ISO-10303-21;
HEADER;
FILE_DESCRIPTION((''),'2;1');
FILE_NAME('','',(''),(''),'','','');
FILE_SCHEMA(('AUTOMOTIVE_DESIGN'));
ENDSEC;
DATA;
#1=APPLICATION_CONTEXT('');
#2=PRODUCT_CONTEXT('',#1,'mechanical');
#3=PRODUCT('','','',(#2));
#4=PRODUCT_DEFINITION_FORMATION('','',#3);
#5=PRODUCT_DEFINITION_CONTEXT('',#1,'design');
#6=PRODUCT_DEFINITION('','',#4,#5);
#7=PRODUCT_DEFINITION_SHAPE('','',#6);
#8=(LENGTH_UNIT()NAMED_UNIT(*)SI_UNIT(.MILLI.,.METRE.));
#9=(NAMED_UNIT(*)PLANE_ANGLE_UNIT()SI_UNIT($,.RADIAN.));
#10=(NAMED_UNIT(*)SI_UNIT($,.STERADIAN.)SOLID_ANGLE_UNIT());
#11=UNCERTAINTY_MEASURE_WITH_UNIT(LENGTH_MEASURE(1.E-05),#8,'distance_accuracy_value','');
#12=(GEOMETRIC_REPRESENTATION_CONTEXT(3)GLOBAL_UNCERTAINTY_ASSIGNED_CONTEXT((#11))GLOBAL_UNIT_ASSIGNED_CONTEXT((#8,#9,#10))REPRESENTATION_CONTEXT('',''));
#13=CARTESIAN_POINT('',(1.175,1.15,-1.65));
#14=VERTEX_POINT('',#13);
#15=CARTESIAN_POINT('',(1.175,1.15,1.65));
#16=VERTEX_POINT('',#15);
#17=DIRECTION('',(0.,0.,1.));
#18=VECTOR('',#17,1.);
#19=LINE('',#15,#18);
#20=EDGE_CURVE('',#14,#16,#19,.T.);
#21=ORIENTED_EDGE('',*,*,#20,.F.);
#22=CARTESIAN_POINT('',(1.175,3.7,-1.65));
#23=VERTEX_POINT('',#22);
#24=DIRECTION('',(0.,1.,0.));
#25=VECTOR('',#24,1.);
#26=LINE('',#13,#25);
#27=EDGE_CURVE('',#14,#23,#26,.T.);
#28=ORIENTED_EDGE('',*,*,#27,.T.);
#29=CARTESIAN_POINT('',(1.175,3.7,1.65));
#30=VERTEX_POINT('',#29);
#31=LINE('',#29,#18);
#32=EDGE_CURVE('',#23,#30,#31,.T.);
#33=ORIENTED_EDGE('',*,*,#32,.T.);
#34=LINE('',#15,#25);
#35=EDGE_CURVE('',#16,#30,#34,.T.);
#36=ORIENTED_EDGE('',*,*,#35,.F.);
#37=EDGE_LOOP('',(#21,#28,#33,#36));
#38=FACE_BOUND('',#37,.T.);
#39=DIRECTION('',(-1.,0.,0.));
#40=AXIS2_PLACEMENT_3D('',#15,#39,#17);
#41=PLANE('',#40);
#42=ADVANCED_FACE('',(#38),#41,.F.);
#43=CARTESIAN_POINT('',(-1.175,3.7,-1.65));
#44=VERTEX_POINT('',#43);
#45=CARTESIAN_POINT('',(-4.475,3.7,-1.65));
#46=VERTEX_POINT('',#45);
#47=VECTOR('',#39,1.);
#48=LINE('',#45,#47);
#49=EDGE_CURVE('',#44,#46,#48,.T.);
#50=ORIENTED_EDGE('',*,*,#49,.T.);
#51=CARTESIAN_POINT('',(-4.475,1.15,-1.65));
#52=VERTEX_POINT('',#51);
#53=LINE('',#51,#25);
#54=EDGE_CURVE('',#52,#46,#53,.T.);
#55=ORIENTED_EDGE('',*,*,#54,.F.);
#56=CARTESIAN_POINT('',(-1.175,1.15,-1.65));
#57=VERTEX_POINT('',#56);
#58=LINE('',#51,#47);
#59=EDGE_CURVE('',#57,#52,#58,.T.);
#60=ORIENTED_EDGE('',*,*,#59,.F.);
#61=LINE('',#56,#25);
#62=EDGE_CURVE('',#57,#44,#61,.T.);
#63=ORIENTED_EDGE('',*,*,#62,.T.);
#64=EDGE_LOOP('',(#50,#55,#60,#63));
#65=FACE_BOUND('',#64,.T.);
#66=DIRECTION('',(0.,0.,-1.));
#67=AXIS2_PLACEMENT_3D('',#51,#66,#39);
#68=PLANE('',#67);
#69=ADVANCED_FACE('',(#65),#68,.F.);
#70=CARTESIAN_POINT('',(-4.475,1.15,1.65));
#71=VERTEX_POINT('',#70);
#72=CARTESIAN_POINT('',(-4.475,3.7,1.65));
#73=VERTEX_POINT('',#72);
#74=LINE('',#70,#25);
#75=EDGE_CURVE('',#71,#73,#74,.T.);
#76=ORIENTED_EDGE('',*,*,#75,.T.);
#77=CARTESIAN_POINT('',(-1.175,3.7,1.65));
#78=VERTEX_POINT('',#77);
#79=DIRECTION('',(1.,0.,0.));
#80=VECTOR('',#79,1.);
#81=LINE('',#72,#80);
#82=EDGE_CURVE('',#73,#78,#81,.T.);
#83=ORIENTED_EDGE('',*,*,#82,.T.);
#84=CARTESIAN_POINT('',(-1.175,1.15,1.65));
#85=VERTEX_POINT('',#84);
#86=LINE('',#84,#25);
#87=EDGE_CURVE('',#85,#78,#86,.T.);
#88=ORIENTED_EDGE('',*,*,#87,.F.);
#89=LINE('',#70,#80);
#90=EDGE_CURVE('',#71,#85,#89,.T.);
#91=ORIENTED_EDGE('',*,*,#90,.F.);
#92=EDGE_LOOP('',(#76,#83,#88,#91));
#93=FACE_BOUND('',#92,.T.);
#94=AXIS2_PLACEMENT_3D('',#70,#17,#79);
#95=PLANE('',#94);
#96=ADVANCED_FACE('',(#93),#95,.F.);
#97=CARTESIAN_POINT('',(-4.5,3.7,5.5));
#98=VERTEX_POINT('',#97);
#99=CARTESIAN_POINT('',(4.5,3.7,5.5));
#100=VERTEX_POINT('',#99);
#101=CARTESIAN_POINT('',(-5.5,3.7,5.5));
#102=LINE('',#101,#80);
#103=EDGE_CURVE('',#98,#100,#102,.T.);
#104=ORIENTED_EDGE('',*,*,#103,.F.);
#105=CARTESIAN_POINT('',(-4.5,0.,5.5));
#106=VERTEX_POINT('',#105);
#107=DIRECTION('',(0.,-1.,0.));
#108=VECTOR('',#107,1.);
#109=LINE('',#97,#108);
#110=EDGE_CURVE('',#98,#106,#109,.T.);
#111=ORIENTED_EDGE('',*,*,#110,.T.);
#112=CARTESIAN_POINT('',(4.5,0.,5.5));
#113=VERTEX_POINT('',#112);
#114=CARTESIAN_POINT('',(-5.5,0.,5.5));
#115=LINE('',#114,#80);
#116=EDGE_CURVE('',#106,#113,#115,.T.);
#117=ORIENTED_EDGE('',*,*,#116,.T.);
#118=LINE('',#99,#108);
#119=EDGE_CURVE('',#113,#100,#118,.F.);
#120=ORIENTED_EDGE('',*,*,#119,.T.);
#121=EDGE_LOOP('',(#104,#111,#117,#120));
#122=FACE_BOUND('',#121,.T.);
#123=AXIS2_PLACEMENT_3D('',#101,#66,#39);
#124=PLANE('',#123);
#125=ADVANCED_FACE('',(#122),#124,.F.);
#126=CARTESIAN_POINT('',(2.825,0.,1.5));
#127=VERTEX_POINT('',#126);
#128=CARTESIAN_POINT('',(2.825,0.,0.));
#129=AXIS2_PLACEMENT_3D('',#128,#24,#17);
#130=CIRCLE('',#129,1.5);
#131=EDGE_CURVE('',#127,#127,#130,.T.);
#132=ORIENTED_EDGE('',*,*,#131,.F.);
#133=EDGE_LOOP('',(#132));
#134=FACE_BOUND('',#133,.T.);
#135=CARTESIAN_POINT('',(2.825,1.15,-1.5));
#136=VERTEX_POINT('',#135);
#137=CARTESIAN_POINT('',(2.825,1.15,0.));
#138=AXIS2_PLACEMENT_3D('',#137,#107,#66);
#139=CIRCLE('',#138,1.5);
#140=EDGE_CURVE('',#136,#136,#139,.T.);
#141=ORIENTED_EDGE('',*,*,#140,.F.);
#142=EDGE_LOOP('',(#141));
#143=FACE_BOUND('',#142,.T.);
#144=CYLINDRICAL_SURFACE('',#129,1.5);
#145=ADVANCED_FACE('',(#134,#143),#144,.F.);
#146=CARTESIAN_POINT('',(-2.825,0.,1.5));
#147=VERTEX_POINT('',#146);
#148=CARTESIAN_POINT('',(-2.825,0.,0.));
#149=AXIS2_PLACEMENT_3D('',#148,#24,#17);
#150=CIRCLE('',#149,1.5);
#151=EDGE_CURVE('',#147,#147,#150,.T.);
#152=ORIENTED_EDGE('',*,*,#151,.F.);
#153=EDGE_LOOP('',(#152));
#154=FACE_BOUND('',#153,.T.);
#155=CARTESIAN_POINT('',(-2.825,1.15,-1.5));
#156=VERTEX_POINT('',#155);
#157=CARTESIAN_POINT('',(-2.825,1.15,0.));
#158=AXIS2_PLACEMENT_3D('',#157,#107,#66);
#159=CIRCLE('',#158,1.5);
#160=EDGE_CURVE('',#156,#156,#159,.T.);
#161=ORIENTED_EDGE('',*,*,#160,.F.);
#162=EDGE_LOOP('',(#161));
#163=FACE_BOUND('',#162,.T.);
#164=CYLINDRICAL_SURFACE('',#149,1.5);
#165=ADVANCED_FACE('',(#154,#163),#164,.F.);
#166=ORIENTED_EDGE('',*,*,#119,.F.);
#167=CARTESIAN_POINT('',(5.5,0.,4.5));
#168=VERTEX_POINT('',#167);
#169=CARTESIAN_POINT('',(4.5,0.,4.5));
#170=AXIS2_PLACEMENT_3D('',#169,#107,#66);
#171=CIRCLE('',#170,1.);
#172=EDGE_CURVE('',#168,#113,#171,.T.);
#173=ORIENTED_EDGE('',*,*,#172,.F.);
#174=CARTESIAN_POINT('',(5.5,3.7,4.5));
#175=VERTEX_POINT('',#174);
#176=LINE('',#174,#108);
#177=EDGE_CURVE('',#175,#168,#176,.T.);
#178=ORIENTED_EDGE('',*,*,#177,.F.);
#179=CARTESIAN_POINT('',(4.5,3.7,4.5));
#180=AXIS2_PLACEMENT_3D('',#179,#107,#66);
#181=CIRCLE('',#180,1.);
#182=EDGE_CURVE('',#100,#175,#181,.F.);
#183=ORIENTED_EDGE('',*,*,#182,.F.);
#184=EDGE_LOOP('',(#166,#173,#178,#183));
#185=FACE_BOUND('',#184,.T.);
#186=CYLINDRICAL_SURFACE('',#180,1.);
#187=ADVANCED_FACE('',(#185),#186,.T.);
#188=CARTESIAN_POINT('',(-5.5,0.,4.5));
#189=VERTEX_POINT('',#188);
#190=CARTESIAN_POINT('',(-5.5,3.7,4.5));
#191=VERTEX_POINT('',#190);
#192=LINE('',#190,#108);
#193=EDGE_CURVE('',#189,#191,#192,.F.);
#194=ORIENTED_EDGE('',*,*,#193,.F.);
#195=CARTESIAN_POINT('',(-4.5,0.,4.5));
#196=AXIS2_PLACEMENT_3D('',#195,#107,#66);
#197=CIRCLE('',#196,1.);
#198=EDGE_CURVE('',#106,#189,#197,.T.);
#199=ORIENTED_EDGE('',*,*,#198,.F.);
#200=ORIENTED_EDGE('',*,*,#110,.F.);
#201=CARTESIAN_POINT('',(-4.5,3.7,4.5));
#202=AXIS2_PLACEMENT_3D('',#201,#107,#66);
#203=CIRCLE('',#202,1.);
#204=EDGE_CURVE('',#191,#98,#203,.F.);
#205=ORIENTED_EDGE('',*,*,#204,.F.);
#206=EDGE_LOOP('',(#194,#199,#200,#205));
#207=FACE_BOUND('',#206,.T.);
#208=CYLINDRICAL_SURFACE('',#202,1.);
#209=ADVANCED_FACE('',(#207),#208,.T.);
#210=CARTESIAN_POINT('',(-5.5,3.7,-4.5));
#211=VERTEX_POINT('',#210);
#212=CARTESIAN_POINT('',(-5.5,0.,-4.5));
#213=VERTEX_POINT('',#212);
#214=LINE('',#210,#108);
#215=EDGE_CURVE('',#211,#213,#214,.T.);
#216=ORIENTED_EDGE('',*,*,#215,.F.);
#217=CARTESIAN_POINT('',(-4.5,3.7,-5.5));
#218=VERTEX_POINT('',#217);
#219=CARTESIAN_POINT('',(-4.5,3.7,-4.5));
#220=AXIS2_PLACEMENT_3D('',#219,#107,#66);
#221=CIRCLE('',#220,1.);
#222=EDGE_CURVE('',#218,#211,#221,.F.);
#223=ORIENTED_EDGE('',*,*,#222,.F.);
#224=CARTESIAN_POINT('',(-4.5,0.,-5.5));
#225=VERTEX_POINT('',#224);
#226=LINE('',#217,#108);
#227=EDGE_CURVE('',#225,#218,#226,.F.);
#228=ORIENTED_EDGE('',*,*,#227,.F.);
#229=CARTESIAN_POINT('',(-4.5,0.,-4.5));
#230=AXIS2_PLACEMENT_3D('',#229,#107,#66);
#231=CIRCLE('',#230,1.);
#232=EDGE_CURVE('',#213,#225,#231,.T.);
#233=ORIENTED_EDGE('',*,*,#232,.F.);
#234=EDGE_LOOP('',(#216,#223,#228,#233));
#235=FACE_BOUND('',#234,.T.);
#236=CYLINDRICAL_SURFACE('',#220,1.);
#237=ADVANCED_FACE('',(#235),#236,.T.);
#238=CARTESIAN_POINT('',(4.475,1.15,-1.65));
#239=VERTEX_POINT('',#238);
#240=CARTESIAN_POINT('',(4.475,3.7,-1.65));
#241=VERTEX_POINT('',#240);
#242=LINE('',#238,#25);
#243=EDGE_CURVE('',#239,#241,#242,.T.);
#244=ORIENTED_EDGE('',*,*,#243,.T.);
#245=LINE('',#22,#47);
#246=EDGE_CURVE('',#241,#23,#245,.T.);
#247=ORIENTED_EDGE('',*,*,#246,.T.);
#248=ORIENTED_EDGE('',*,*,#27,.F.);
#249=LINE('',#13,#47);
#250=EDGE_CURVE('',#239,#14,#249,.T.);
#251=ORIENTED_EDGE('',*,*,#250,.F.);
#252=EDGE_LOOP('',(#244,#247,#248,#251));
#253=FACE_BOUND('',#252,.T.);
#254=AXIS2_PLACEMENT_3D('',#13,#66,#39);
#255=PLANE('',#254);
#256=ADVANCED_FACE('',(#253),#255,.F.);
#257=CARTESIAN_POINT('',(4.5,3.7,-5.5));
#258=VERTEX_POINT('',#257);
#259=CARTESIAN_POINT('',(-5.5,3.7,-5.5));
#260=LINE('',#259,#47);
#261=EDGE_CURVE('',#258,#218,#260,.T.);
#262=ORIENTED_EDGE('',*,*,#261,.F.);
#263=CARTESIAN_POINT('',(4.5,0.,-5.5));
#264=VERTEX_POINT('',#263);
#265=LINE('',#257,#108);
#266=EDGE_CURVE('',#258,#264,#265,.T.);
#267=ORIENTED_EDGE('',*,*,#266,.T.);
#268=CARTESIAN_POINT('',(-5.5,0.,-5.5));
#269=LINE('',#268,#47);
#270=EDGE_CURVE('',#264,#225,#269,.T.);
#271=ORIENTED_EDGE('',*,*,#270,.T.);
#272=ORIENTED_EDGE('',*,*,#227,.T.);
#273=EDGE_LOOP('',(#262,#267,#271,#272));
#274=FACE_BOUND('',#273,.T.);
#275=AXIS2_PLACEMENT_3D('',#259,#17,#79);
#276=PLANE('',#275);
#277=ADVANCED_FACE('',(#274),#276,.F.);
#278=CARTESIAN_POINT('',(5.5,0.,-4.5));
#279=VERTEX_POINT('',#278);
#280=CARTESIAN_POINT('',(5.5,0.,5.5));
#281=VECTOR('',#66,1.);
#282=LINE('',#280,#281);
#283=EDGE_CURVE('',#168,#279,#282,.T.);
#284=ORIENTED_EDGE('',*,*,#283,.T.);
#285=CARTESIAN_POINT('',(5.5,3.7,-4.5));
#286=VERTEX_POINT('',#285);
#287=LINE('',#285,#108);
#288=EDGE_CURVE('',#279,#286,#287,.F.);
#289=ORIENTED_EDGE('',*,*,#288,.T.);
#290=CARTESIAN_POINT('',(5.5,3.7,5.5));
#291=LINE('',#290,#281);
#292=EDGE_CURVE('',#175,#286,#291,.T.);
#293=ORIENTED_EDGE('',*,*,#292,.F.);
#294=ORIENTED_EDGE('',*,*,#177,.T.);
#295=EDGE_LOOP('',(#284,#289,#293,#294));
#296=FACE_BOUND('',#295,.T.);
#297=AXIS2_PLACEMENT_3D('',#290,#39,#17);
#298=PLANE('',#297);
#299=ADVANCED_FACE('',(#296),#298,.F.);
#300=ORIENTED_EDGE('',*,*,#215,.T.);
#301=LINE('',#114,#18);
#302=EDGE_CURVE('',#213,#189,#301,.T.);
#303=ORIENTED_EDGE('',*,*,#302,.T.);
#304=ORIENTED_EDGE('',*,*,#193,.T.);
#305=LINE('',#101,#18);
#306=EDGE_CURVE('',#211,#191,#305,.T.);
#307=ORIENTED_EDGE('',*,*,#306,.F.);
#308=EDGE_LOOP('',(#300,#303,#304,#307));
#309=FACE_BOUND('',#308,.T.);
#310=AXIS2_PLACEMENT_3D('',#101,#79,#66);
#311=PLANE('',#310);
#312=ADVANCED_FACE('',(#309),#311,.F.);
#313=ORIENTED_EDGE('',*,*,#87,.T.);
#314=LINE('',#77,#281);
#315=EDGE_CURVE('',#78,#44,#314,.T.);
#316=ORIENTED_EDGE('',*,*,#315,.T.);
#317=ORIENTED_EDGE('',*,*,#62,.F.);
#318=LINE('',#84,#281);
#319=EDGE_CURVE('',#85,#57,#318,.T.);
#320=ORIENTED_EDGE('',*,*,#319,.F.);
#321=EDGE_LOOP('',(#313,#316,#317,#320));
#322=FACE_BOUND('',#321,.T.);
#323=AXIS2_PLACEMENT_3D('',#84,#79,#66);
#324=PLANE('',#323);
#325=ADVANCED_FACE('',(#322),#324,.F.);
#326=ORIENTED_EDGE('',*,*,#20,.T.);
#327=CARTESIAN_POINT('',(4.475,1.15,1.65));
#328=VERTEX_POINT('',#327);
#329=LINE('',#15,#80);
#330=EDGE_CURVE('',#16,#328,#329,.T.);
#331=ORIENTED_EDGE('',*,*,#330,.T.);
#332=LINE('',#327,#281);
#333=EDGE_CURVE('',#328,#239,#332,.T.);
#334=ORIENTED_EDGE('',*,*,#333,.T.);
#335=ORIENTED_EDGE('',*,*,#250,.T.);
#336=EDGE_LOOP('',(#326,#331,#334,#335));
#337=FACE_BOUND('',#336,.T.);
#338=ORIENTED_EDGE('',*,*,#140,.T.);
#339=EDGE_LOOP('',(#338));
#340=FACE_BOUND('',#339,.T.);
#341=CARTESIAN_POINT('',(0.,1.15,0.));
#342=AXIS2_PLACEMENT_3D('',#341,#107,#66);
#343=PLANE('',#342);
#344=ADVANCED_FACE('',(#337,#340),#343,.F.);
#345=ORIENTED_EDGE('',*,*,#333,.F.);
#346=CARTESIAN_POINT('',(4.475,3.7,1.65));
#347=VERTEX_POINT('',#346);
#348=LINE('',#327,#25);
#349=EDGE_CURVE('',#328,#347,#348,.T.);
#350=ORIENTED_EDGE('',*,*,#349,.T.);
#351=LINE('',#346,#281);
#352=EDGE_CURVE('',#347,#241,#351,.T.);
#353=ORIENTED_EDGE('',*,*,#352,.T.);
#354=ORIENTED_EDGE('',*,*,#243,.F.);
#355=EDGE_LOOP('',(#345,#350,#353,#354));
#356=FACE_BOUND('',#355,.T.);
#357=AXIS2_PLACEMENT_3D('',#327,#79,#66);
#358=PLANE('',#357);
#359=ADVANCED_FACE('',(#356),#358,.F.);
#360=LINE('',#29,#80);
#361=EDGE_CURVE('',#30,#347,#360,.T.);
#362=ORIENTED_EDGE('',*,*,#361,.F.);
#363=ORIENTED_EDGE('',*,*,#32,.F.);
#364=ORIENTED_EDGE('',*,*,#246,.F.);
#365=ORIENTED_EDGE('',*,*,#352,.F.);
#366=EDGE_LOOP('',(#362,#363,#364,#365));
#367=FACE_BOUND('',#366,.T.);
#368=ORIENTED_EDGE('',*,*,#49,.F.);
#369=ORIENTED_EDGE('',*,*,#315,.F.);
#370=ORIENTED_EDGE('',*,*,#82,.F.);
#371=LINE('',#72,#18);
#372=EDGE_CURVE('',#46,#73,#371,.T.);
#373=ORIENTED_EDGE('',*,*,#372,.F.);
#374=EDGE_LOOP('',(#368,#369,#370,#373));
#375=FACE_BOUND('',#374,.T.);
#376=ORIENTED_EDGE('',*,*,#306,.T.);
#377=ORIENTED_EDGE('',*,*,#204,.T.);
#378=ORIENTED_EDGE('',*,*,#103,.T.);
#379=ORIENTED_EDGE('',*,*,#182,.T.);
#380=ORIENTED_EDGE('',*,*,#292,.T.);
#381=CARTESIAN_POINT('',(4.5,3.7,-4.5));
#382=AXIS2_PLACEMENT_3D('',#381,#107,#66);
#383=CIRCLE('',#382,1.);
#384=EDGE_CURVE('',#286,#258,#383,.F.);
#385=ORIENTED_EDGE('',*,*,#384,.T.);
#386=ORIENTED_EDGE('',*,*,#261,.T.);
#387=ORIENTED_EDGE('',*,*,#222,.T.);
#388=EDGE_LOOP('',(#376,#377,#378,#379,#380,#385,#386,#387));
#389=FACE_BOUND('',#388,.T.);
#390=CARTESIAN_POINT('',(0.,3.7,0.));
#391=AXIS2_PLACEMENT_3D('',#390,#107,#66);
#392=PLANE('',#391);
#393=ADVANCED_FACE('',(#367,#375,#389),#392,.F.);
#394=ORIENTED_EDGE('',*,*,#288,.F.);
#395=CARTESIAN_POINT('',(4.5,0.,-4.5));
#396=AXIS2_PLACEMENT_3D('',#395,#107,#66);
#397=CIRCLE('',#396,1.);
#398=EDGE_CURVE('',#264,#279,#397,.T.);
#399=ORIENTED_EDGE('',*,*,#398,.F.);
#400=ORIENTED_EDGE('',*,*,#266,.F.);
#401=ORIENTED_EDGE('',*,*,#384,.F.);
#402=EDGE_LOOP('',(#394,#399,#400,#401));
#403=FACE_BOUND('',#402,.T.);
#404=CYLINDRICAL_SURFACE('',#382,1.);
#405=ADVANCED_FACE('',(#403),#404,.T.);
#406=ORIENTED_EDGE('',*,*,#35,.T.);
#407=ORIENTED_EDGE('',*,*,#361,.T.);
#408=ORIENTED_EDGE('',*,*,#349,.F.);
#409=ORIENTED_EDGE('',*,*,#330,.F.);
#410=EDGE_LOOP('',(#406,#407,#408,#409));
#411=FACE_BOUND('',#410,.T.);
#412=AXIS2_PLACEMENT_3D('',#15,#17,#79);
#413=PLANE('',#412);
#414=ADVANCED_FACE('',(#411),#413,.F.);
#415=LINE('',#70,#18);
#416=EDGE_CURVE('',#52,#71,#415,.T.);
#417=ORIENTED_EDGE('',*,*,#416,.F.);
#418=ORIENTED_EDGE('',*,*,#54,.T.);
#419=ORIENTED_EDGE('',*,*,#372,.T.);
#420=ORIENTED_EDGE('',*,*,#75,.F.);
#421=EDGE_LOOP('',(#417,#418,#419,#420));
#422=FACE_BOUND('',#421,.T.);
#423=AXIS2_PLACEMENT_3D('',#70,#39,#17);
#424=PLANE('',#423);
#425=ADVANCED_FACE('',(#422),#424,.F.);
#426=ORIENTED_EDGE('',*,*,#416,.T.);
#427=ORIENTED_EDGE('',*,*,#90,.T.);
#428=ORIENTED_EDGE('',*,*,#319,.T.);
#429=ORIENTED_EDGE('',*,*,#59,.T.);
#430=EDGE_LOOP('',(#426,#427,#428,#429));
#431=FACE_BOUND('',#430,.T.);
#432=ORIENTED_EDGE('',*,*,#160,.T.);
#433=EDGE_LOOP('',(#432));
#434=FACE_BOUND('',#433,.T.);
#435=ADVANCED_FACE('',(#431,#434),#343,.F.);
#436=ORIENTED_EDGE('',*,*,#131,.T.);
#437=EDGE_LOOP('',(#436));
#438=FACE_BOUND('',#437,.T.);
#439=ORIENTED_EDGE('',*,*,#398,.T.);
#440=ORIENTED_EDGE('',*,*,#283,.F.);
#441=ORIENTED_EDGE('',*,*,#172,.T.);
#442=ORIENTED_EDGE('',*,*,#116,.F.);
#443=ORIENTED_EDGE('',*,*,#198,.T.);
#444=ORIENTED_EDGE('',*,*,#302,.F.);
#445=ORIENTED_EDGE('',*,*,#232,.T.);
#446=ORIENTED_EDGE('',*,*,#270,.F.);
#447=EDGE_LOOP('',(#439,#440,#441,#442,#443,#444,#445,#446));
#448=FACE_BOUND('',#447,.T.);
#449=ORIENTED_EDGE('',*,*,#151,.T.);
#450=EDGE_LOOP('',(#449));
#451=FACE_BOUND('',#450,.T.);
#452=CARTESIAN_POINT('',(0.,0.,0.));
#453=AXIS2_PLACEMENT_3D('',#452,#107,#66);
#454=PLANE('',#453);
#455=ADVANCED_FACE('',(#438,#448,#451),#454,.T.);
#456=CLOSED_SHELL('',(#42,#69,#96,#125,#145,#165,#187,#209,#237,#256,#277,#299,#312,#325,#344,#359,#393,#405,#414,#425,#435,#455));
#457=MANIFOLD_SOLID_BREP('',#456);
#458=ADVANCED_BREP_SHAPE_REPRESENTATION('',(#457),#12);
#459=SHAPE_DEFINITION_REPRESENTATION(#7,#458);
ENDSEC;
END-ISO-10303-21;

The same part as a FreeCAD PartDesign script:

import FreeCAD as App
import Part
import Sketcher

V = App.Vector
Q = App.Units.Quantity


def edges_at(feature, points):
    """Names of the edges that pass closest to the given points."""
    edges = feature.Shape.Edges
    near = lambda p: min(range(len(edges)), key=lambda i: edges[i].distToShape(Part.Vertex(*p))[0])
    return sorted({f"Edge{near(p) + 1}" for p in points})

doc = App.newDocument("Part")
body = doc.addObject("PartDesign::Body", "Body")

sketch1 = doc.addObject("Sketcher::SketchObject", "Sketch")
body.addObject(sketch1)
sketch1.AttachmentSupport = (doc.XZ_Plane, [""])
sketch1.MapMode = "FlatFace"
sketch1.addGeometry(Part.LineSegment(V(-6, -6, 0), V(-6, 6, 0)), False)
sketch1.addGeometry(Part.LineSegment(V(-6, 6, 0), V(6, 6, 0)), False)
sketch1.addGeometry(Part.LineSegment(V(6, 6, 0), V(6, -6, 0)), False)
sketch1.addGeometry(Part.LineSegment(V(6, -6, 0), V(-6, -6, 0)), False)
sketch1.addConstraint(Sketcher.Constraint("Coincident", 0, 2, 1, 1))
sketch1.addConstraint(Sketcher.Constraint("Coincident", 1, 2, 2, 1))
sketch1.addConstraint(Sketcher.Constraint("Coincident", 2, 2, 3, 1))
sketch1.addConstraint(Sketcher.Constraint("Coincident", 3, 2, 0, 1))
sketch1.addConstraint(Sketcher.Constraint("Vertical", 0))
sketch1.addConstraint(Sketcher.Constraint("Horizontal", 1))
sketch1.addConstraint(Sketcher.Constraint("Vertical", 2))
sketch1.addConstraint(Sketcher.Constraint("Horizontal", 3))
sketch1.addConstraint(Sketcher.Constraint("Symmetric", 0, 2, 2, 2, -1, 1))
sketch1.addConstraint(Sketcher.Constraint("Equal", 3, 0))
sketch1.addConstraint(Sketcher.Constraint("DistanceX", 1, 1, 1, 2, Q("11 mm")))
pad1 = doc.addObject("PartDesign::Pad", "Pad")
body.addObject(pad1)
pad1.Profile = sketch1
pad1.Length = 3.7
pad1.Reversed = True
doc.recompute()

fillet = doc.addObject("PartDesign::Fillet", "Fillet")
body.addObject(fillet)
fillet.Base = (pad1, edges_at(pad1, [
    (5.5, 1.85, 5.5),
    (-5.5, 1.85, 5.5),
    (-5.5, 1.85, -5.5),
    (5.5, 1.85, -5.5),
]))
fillet.Radius = 1

sketch2 = doc.addObject("Sketcher::SketchObject", "Sketch001")
body.addObject(sketch2)
sketch2.AttachmentSupport = (doc.XZ_Plane, [""])
sketch2.MapMode = "FlatFace"
sketch2.AttachmentOffset = App.Placement(V(0, 0, -3.7), App.Rotation())
sketch2.addGeometry(Part.LineSegment(V(-4.5, -1.6, 0), V(-4.5, 1.6, 0)), False)
sketch2.addGeometry(Part.LineSegment(V(-4.5, 1.6, 0), V(-1.2, 1.6, 0)), False)
sketch2.addGeometry(Part.LineSegment(V(-1.2, 1.6, 0), V(-1.2, -1.6, 0)), False)
sketch2.addGeometry(Part.LineSegment(V(-1.2, -1.6, 0), V(-4.5, -1.6, 0)), False)
sketch2.addGeometry(Part.LineSegment(V(1.2, -1.6, 0), V(1.2, 1.6, 0)), False)
sketch2.addGeometry(Part.LineSegment(V(1.2, 1.6, 0), V(4.5, 1.6, 0)), False)
sketch2.addGeometry(Part.LineSegment(V(4.5, 1.6, 0), V(4.5, -1.6, 0)), False)
sketch2.addGeometry(Part.LineSegment(V(4.5, -1.6, 0), V(1.2, -1.6, 0)), False)
sketch2.addConstraint(Sketcher.Constraint("Coincident", 0, 2, 1, 1))
sketch2.addConstraint(Sketcher.Constraint("Coincident", 1, 2, 2, 1))
sketch2.addConstraint(Sketcher.Constraint("Coincident", 2, 2, 3, 1))
sketch2.addConstraint(Sketcher.Constraint("Coincident", 3, 2, 0, 1))
sketch2.addConstraint(Sketcher.Constraint("Coincident", 4, 2, 5, 1))
sketch2.addConstraint(Sketcher.Constraint("Coincident", 5, 2, 6, 1))
sketch2.addConstraint(Sketcher.Constraint("Coincident", 6, 2, 7, 1))
sketch2.addConstraint(Sketcher.Constraint("Coincident", 7, 2, 4, 1))
sketch2.addConstraint(Sketcher.Constraint("Vertical", 0))
sketch2.addConstraint(Sketcher.Constraint("Horizontal", 1))
sketch2.addConstraint(Sketcher.Constraint("Vertical", 2))
sketch2.addConstraint(Sketcher.Constraint("Horizontal", 3))
sketch2.addConstraint(Sketcher.Constraint("Vertical", 4))
sketch2.addConstraint(Sketcher.Constraint("Horizontal", 5))
sketch2.addConstraint(Sketcher.Constraint("Vertical", 6))
sketch2.addConstraint(Sketcher.Constraint("Horizontal", 7))
sketch2.addConstraint(Sketcher.Constraint("Symmetric", 2, 2, 4, 2, -1, 1))
sketch2.addConstraint(Sketcher.Constraint("Symmetric", 0, 2, 6, 2, -1, 1))
sketch2.addConstraint(Sketcher.Constraint("Horizontal", 1, 2, 4, 2))
sketch2.addConstraint(Sketcher.Constraint("Equal", 7, 0))
sketch2.addConstraint(Sketcher.Constraint("DistanceX", 1, 1, 1, 2, Q("3.3 mm")))
sketch2.addConstraint(Sketcher.Constraint("DistanceX", 1, 2, 4, 2, Q("2.35 mm")))
pocket1 = doc.addObject("PartDesign::Pocket", "Pocket")
body.addObject(pocket1)
pocket1.Profile = sketch2
pocket1.Length = 2.55
pocket1.Reversed = True

sketch3 = doc.addObject("Sketcher::SketchObject", "Sketch002")
body.addObject(sketch3)
sketch3.AttachmentSupport = (doc.XZ_Plane, [""])
sketch3.MapMode = "FlatFace"
sketch3.AttachmentOffset = App.Placement(V(0, 0, -3.7), App.Rotation())
sketch3.addGeometry(Part.Circle(V(-2.8, 0, 0), V(0, 0, 1), 1.5), False)
sketch3.addGeometry(Part.Circle(V(2.8, 0, 0), V(0, 0, 1), 1.5), False)
sketch3.addConstraint(Sketcher.Constraint("Equal", 0, 1))
sketch3.addConstraint(Sketcher.Constraint("Symmetric", 0, 3, 1, 3, -1, 1))
sketch3.addConstraint(Sketcher.Constraint("PointOnObject", 0, 3, -1))
sketch3.addConstraint(Sketcher.Constraint("Diameter", 0, Q("3 mm")))
sketch3.addConstraint(Sketcher.Constraint("DistanceX", 0, 3, 1, 3, Q("5.65 mm")))
pocket2 = doc.addObject("PartDesign::Pocket", "Pocket001")
body.addObject(pocket2)
pocket2.Profile = sketch3
pocket2.Type = "ThroughAll"
pocket2.Reversed = True

doc.recompute()
